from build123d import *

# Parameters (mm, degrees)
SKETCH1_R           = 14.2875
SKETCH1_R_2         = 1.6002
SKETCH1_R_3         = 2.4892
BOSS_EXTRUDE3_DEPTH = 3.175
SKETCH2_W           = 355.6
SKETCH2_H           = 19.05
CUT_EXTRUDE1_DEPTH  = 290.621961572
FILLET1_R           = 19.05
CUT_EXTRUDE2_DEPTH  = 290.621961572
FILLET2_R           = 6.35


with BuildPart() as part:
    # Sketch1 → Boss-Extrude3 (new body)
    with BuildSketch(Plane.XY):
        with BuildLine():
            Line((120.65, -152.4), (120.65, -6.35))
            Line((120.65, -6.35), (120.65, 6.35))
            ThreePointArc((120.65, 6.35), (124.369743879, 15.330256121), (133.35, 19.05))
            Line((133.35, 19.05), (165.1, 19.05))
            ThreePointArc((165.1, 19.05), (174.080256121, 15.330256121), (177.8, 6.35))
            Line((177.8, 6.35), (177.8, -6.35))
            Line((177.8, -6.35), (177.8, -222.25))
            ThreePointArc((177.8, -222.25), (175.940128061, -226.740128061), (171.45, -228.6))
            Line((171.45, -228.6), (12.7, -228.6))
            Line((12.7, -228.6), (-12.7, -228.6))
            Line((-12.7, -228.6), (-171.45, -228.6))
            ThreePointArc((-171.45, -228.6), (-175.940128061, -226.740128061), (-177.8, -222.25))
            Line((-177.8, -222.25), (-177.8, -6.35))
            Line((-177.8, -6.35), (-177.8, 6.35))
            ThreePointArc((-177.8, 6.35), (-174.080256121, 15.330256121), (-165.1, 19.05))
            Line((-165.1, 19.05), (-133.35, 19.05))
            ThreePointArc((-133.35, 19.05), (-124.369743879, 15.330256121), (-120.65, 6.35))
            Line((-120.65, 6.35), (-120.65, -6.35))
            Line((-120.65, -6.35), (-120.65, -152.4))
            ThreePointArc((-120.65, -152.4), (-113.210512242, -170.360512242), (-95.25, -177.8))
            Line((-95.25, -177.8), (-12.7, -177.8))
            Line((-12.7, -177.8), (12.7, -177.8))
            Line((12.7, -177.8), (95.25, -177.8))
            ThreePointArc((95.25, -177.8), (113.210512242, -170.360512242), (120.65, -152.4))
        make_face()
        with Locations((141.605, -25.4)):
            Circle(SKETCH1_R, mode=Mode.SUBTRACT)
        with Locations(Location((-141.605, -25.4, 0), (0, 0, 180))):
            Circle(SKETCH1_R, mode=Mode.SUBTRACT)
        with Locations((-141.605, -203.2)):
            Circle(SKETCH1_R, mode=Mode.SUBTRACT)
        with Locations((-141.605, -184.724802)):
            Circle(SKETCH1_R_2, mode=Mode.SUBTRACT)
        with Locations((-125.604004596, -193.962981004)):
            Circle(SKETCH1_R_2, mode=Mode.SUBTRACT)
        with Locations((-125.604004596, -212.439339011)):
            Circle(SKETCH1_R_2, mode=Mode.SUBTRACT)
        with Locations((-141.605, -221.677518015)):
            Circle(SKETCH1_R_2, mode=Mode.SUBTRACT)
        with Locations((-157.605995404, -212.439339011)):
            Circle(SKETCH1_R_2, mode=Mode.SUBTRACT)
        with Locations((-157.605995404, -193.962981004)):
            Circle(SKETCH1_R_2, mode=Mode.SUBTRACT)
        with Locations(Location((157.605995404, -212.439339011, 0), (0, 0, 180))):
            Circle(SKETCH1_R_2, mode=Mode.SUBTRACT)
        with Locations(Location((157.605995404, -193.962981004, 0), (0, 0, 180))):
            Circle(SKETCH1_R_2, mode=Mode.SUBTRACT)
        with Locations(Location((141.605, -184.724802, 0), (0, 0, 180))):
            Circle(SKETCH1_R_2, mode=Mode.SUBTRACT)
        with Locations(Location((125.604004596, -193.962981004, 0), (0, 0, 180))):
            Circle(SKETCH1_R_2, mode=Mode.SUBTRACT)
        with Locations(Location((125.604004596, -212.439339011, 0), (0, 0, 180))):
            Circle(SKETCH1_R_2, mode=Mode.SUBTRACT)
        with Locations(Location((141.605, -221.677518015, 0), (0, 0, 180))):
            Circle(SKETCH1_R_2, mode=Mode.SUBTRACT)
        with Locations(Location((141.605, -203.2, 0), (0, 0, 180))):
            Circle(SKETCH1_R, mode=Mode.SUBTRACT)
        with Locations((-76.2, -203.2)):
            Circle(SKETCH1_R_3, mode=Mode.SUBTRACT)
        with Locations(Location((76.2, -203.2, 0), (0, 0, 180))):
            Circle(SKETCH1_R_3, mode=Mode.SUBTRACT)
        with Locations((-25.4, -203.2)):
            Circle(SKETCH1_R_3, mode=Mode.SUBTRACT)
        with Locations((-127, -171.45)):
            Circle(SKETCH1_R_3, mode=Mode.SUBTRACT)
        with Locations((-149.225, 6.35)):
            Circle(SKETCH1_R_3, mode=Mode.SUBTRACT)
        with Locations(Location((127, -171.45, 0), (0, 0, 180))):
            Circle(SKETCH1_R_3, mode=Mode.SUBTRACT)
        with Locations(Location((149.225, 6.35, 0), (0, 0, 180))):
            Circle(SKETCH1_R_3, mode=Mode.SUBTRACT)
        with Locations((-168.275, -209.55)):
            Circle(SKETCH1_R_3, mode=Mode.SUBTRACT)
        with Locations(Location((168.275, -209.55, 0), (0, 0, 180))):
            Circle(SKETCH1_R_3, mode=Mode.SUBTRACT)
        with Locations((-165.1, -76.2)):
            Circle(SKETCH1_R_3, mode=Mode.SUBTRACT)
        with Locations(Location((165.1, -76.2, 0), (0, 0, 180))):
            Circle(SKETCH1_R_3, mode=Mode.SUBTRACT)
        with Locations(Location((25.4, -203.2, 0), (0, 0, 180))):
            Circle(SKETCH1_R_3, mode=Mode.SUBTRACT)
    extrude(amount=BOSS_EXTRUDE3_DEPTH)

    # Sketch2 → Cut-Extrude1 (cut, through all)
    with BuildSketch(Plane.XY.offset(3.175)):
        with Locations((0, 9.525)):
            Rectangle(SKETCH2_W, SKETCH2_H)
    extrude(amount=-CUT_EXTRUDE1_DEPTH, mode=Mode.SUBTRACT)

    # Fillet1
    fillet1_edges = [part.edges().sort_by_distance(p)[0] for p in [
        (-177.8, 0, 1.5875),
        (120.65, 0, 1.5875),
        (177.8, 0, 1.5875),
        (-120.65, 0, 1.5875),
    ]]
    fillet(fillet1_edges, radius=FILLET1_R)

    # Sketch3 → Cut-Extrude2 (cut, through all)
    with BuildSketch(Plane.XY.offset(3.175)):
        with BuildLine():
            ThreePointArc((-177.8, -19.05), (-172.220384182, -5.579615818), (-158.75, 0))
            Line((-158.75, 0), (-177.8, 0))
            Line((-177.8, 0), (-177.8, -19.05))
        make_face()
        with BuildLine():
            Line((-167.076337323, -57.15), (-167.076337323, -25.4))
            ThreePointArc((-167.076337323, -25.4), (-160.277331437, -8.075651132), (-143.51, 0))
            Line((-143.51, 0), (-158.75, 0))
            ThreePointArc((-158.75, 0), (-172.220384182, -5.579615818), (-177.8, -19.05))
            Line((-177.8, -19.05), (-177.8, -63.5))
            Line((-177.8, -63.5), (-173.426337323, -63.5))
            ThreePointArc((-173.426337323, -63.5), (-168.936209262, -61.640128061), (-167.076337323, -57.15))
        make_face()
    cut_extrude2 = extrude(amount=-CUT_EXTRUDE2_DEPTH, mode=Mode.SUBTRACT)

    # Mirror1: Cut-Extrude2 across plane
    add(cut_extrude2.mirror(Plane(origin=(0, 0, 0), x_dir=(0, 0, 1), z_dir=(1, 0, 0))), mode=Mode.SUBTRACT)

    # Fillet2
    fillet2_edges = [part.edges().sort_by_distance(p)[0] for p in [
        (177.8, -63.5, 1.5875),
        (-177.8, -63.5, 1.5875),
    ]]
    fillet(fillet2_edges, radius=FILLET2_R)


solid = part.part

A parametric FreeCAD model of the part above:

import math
import FreeCAD as App
import Part
import Sketcher
Q = App.Units.Quantity


def edges_at(feature, points):
    """Names of the edges that pass closest to the given points."""
    edges = feature.Shape.Edges
    near = lambda p: min(range(len(edges)), key=lambda i: edges[i].distToShape(Part.Vertex(*p))[0])
    return sorted({f"Edge{near(p) + 1}" for p in points})


def add_polygon(sketch, points):
    """Adds a closed chain of lines whose ends are joined by coincident constraints."""
    first, n = sketch.GeometryCount, len(points)
    for a, b in zip(points, points[1:] + points[:1]):
        sketch.addGeometry(Part.LineSegment(App.Vector(*a, 0), App.Vector(*b, 0)), False)
    for i in range(n):
        sketch.addConstraint(Sketcher.Constraint("Coincident", first + i, 2, first + (i + 1) % n, 1))

doc = App.newDocument("Part")
body = doc.addObject("PartDesign::Body", "Body")

# Sketch on XY plane
sketch1 = doc.addObject("Sketcher::SketchObject", "Sketch")
body.addObject(sketch1)
sketch1.AttachmentSupport = (doc.XY_Plane, [""])
sketch1.MapMode = "FlatFace"
sketch1.addGeometry([
    Part.LineSegment(App.Vector(120.7, 6.3, 0), App.Vector(120.7, -152.4, 0)),  # 0
    Part.ArcOfCircle(Part.Circle(App.Vector(95.2, -152.4, 0), App.Vector(0, 0, 1), 25.4), math.radians(-90), math.radians(0)),  # 1
    Part.LineSegment(App.Vector(95.2, -177.8, 0), App.Vector(-95.2, -177.8, 0)),  # 2
    Part.ArcOfCircle(Part.Circle(App.Vector(-95.2, -152.4, 0), App.Vector(0, 0, 1), 25.4), math.radians(180), math.radians(270)),  # 3
    Part.LineSegment(App.Vector(-120.7, -152.4, 0), App.Vector(-120.7, 6.3, 0)),  # 4
    Part.ArcOfCircle(Part.Circle(App.Vector(-133.3, 6.3, 0), App.Vector(0, 0, 1), 12.7), math.radians(0), math.radians(90)),  # 5
    Part.LineSegment(App.Vector(-133.3, 19.1, 0), App.Vector(-165.1, 19.1, 0)),  # 6
    Part.ArcOfCircle(Part.Circle(App.Vector(-165.1, 6.3, 0), App.Vector(0, 0, 1), 12.7), math.radians(90), math.radians(180)),  # 7
    Part.LineSegment(App.Vector(-177.8, 6.3, 0), App.Vector(-177.8, -222.2, 0)),  # 8
    Part.ArcOfCircle(Part.Circle(App.Vector(-171.5, -222.3, 0), App.Vector(0, 0, 1), 6.3), math.radians(180), math.radians(270)),  # 9
    Part.LineSegment(App.Vector(-171.4, -228.6, 0), App.Vector(171.4, -228.6, 0)),  # 10
    Part.ArcOfCircle(Part.Circle(App.Vector(171.5, -222.3, 0), App.Vector(0, 0, 1), 6.3), math.radians(-90), math.radians(0)),  # 11
    Part.LineSegment(App.Vector(177.8, -222.2, 0), App.Vector(177.8, 6.3, 0)),  # 12
    Part.ArcOfCircle(Part.Circle(App.Vector(165.1, 6.3, 0), App.Vector(0, 0, 1), 12.7), math.radians(0), math.radians(90)),  # 13
    Part.LineSegment(App.Vector(165.1, 19.1, 0), App.Vector(133.3, 19.1, 0)),  # 14
    Part.ArcOfCircle(Part.Circle(App.Vector(133.3, 6.3, 0), App.Vector(0, 0, 1), 12.7), math.radians(90), math.radians(180)),  # 15
    Part.Circle(App.Vector(168.3, -209.6, 0), App.Vector(0, 0, 1), 2.5),  # 16
    Part.Circle(App.Vector(157.6, -212.4, 0), App.Vector(0, 0, 1), 1.6),  # 17
    Part.Circle(App.Vector(141.6, -221.7, 0), App.Vector(0, 0, 1), 1.6),  # 18
    Part.Circle(App.Vector(141.6, -203.2, 0), App.Vector(0, 0, 1), 14.3),  # 19
    Part.Circle(App.Vector(125.6, -212.4, 0), App.Vector(0, 0, 1), 1.6),  # 20
    Part.Circle(App.Vector(157.6, -194, 0), App.Vector(0, 0, 1), 1.6),  # 21
    Part.Circle(App.Vector(141.6, -184.7, 0), App.Vector(0, 0, 1), 1.6),  # 22
    Part.Circle(App.Vector(125.6, -194, 0), App.Vector(0, 0, 1), 1.6),  # 23
    Part.Circle(App.Vector(127, -171.4, 0), App.Vector(0, 0, 1), 2.5),  # 24
    Part.Circle(App.Vector(76.2, -203.2, 0), App.Vector(0, 0, 1), 2.5),  # 25
    Part.Circle(App.Vector(25.4, -203.2, 0), App.Vector(0, 0, 1), 2.5),  # 26
    Part.Circle(App.Vector(-25.4, -203.2, 0), App.Vector(0, 0, 1), 2.5),  # 27
    Part.Circle(App.Vector(-76.2, -203.2, 0), App.Vector(0, 0, 1), 2.5),  # 28
    Part.Circle(App.Vector(-125.6, -212.4, 0), App.Vector(0, 0, 1), 1.6),  # 29
    Part.Circle(App.Vector(-141.6, -221.7, 0), App.Vector(0, 0, 1), 1.6),  # 30
    Part.Circle(App.Vector(-157.6, -212.4, 0), App.Vector(0, 0, 1), 1.6),  # 31
    Part.Circle(App.Vector(-168.3, -209.6, 0), App.Vector(0, 0, 1), 2.5),  # 32
    Part.Circle(App.Vector(-141.6, -203.2, 0), App.Vector(0, 0, 1), 14.3),  # 33
    Part.Circle(App.Vector(-125.6, -194, 0), App.Vector(0, 0, 1), 1.6),  # 34
    Part.Circle(App.Vector(-127, -171.4, 0), App.Vector(0, 0, 1), 2.5),  # 35
    Part.Circle(App.Vector(-141.6, -184.7, 0), App.Vector(0, 0, 1), 1.6),  # 36
    Part.Circle(App.Vector(-157.6, -194, 0), App.Vector(0, 0, 1), 1.6),  # 37
    Part.Circle(App.Vector(165.1, -76.2, 0), App.Vector(0, 0, 1), 2.5),  # 38
    Part.Circle(App.Vector(141.6, -25.4, 0), App.Vector(0, 0, 1), 14.3),  # 39
    Part.Circle(App.Vector(149.2, 6.3, 0), App.Vector(0, 0, 1), 2.5),  # 40
    Part.Circle(App.Vector(-165.1, -76.2, 0), App.Vector(0, 0, 1), 2.5),  # 41
    Part.Circle(App.Vector(-141.6, -25.4, 0), App.Vector(0, 0, 1), 14.3),  # 42
    Part.Circle(App.Vector(-149.2, 6.3, 0), App.Vector(0, 0, 1), 2.5),  # 43
], False)
sketch1.addConstraint([
    Sketcher.Constraint("Tangent", 0, 2, 1, 2),
    Sketcher.Constraint("Tangent", 1, 1, 2, 1),
    Sketcher.Constraint("Tangent", 2, 2, 3, 2),
    Sketcher.Constraint("Tangent", 3, 1, 4, 1),
    Sketcher.Constraint("Tangent", 4, 2, 5, 1),
    Sketcher.Constraint("Tangent", 5, 2, 6, 1),
    Sketcher.Constraint("Tangent", 6, 2, 7, 1),
    Sketcher.Constraint("Tangent", 7, 2, 8, 1),
    Sketcher.Constraint("Tangent", 8, 2, 9, 1),
    Sketcher.Constraint("Tangent", 9, 2, 10, 1),
    Sketcher.Constraint("Tangent", 10, 2, 11, 1),
    Sketcher.Constraint("Tangent", 11, 2, 12, 1),
    Sketcher.Constraint("Tangent", 12, 2, 13, 1),
    Sketcher.Constraint("Tangent", 13, 2, 14, 1),
    Sketcher.Constraint("Tangent", 14, 2, 15, 1),
    Sketcher.Constraint("Tangent", 15, 2, 0, 1),
    Sketcher.Constraint("Vertical", 0),
    Sketcher.Constraint("Horizontal", 2),
    Sketcher.Constraint("Vertical", 4),
    Sketcher.Constraint("Horizontal", 6),
    Sketcher.Constraint("Vertical", 8),
    Sketcher.Constraint("Horizontal", 10),
    Sketcher.Constraint("Vertical", 12),
    Sketcher.Constraint("Horizontal", 14),
    Sketcher.Constraint("Equal", 1, 3),
    Sketcher.Constraint("Equal", 5, 7),
    Sketcher.Constraint("Equal", 9, 11),
    Sketcher.Constraint("Equal", 7, 13),
    Sketcher.Constraint("Equal", 13, 15),
    Sketcher.Constraint("Equal", 17, 18),
    Sketcher.Constraint("Equal", 18, 20),
    Sketcher.Constraint("Equal", 20, 21),
    Sketcher.Constraint("Equal", 21, 22),
    Sketcher.Constraint("Equal", 22, 23),
    Sketcher.Constraint("Equal", 16, 24),
    Sketcher.Constraint("Equal", 24, 25),
    Sketcher.Constraint("Equal", 25, 26),
    Sketcher.Constraint("Equal", 26, 27),
    Sketcher.Constraint("Equal", 27, 28),
    Sketcher.Constraint("Equal", 23, 29),
    Sketcher.Constraint("Equal", 29, 30),
    Sketcher.Constraint("Equal", 30, 31),
    Sketcher.Constraint("Equal", 28, 32),
    Sketcher.Constraint("Equal", 19, 33),
    Sketcher.Constraint("Equal", 31, 34),
    Sketcher.Constraint("Equal", 32, 35),
    Sketcher.Constraint("Equal", 34, 36),
    Sketcher.Constraint("Equal", 36, 37),
    Sketcher.Constraint("Equal", 35, 38),
    Sketcher.Constraint("Equal", 33, 39),
    Sketcher.Constraint("Equal", 38, 40),
    Sketcher.Constraint("Equal", 40, 41),
    Sketcher.Constraint("Equal", 39, 42),
    Sketcher.Constraint("Equal", 41, 43),
    Sketcher.Constraint("Symmetric", 7, 3, 13, 3, -2),
    Sketcher.Constraint("Symmetric", 26, 3, 27, 3, -2),
    Sketcher.Constraint("Symmetric", 25, 3, 28, 3, -2),
    Sketcher.Constraint("Symmetric", 20, 3, 29, 3, -2),
    Sketcher.Constraint("Symmetric", 18, 3, 30, 3, -2),
    Sketcher.Constraint("Symmetric", 17, 3, 31, 3, -2),
    Sketcher.Constraint("Symmetric", 16, 3, 32, 3, -2),
    Sketcher.Constraint("Symmetric", 19, 3, 33, 3, -2),
    Sketcher.Constraint("Symmetric", 23, 3, 34, 3, -2),
    Sketcher.Constraint("Symmetric", 24, 3, 35, 3, -2),
    Sketcher.Constraint("Symmetric", 22, 3, 36, 3, -2),
    Sketcher.Constraint("Symmetric", 21, 3, 37, 3, -2),
    Sketcher.Constraint("Symmetric", 38, 3, 41, 3, -2),
    Sketcher.Constraint("Symmetric", 39, 3, 42, 3, -2),
    Sketcher.Constraint("Symmetric", 40, 3, 43, 3, -2),
    Sketcher.Constraint("Horizontal", 17, 3, 20, 3),
    Sketcher.Constraint("Horizontal", 21, 3, 23, 3),
    Sketcher.Constraint("Horizontal", 19, 3, 25, 3),
    Sketcher.Constraint("Horizontal", 25, 3, 26, 3),
    Sketcher.Constraint("Horizontal", 15, 3, 40, 3),
    Sketcher.Constraint("Vertical", 18, 3, 19, 3),
    Sketcher.Constraint("Vertical", 17, 3, 21, 3),
    Sketcher.Constraint("Vertical", 19, 3, 22, 3),
    Sketcher.Constraint("Vertical", 20, 3, 23, 3),
    Sketcher.Constraint("Vertical", 13, 3, 38, 3),
    Sketcher.Constraint("Vertical", 22, 3, 39, 3),
    Sketcher.Constraint("Equal", 6, 14),
    Sketcher.Constraint("Radius", 1, Q("1 in")),
    Sketcher.Constraint("Radius", 5, Q("0.5 in")),
    Sketcher.Constraint("DistanceY", 8, 2, 8, 1, Q("9 in")),
    Sketcher.Constraint("Radius", 9, Q("0.25 in")),
    Sketcher.Constraint("Diameter", 16, Q("0.196 in")),
    Sketcher.Constraint("Diameter", 17, Q("0.126 in")),
    Sketcher.Constraint("Diameter", 19, Q("1.125 in")),
    Sketcher.Constraint("DistanceX", 2, 2, 2, 1, Q("7.5 in")),
    Sketcher.Constraint("DistanceX", 10, 1, 10, 2, Q("13.5 in")),
    Sketcher.Constraint("DistanceY", 1, 3, -1, 1, Q("6 in")),
    Sketcher.Constraint("DistanceY", 19, 3, -1, 1, Q("8 in")),
    Sketcher.Constraint("DistanceX", -1, 1, 24, 3, Q("5 in")),
    Sketcher.Constraint("DistanceX", -1, 1, 25, 3, Q("3 in")),
    Sketcher.Constraint("DistanceX", -1, 1, 26, 3, Q("1 in")),
    Sketcher.Constraint("DistanceY", 38, 3, -1, 1, Q("3 in")),
    Sketcher.Constraint("DistanceY", 39, 3, -1, 1, Q("1 in")),
    Sketcher.Constraint("DistanceY", 9, 2, -1, 1, Q("9 in")),
    Sketcher.Constraint("DistanceY", 11, 3, 16, 3, Q("0.5 in")),
    Sketcher.Constraint("DistanceX", 39, 3, 40, 3, Q("0.3 in")),
    Sketcher.Constraint("DistanceY", 24, 3, -1, 1, Q("6.75 in")),
    Sketcher.Constraint("DistanceX", 18, 3, 16, 3, Q("1.05 in")),
    Sketcher.Constraint("DistanceX", -1, 1, 16, 3, Q("6.625 in")),
    Sketcher.Constraint("DistanceY", 16, 3, 22, 3, 24.825198),
    Sketcher.Constraint("DistanceY", 17, 3, -1, 1, 212.439339),
    Sketcher.Constraint("DistanceY", 18, 3, -1, 1, 221.677518),
    Sketcher.Constraint("DistanceY", 21, 3, -1, 1, 193.962981),
    Sketcher.Constraint("DistanceX", 20, 3, 17, 3, 32.001991),
    Sketcher.Constraint("DistanceX", -1, 1, 17, 3, 157.605995),
])
pad1 = doc.addObject("PartDesign::Pad", "Pad")
body.addObject(pad1)
pad1.Profile = sketch1
pad1.Length = Q("0.125 in")

# Sketch on XY plane
sketch2 = doc.addObject("Sketcher::SketchObject", "Sketch001")
body.addObject(sketch2)
sketch2.AttachmentSupport = (doc.XY_Plane, [""])
sketch2.MapMode = "FlatFace"
sketch2.AttachmentOffset = App.Placement(App.Vector(0, 0, 0.125 * 25.4), App.Rotation())
add_polygon(sketch2, [(-178, 19), (-178, 0), (178, 0), (178, 19)])  # lines 0-3
sketch2.addConstraint([
    Sketcher.Constraint("Vertical", 0),
    Sketcher.Constraint("Horizontal", 1),
    Sketcher.Constraint("Vertical", 2),
    Sketcher.Constraint("Horizontal", 3),
    Sketcher.Constraint("Symmetric", 0, 2, 1, 2, -1, 1),
    Sketcher.Constraint("DistanceX", 1, 1, 1, 2, Q("14 in")),
    Sketcher.Constraint("DistanceY", 0, 2, 0, 1, Q("0.75 in")),
])
pocket1 = doc.addObject("PartDesign::Pocket", "Pocket")
body.addObject(pocket1)
pocket1.Profile = sketch2
pocket1.Type = "ThroughAll"
doc.recompute()

fillet = doc.addObject("PartDesign::Fillet", "Fillet")
body.addObject(fillet)
fillet.Base = (pocket1, edges_at(pocket1, [
    (-177.8, 0, 1.587),
    (120.65, 0, 1.587),
    (177.8, 0, 1.587),
    (-120.65, 0, 1.587),
]))
fillet.Radius = Q("0.75 in")

# Sketch on XY plane
sketch3 = doc.addObject("Sketcher::SketchObject", "Sketch002")
body.addObject(sketch3)
sketch3.AttachmentSupport = (doc.XY_Plane, [""])
sketch3.MapMode = "FlatFace"
sketch3.AttachmentOffset = App.Placement(App.Vector(0, 0, 0.125 * 25.4), App.Rotation())
sketch3.addGeometry([
    Part.LineSegment(App.Vector(-177.8, 0, 0), App.Vector(-177.8, -63.5, 0)),  # 0
    Part.LineSegment(App.Vector(-177.8, -63.5, 0), App.Vector(-173.4, -63.5, 0)),  # 1
    Part.ArcOfCircle(Part.Circle(App.Vector(-173.4, -57.2, 0), App.Vector(0, 0, 1), 6.3), math.radians(-90), math.radians(0)),  # 2
    Part.LineSegment(App.Vector(-167.1, -57.1, 0), App.Vector(-167.1, -25.4, 0)),  # 3
    Part.ArcOfCircle(Part.Circle(App.Vector(-141.6, -25.4, 0), App.Vector(0, 0, 1), 25.5), math.radians(94), math.radians(180)),  # 4
    Part.LineSegment(App.Vector(-143.5, 0, 0), App.Vector(-177.8, 0, 0)),  # 5
], False)
sketch3.addConstraint([
    Sketcher.Constraint("Coincident", 0, 2, 1, 1),
    Sketcher.Constraint("Tangent", 1, 2, 2, 1),
    Sketcher.Constraint("Tangent", 2, 2, 3, 1),
    Sketcher.Constraint("Tangent", 3, 2, 4, 2),
    Sketcher.Constraint("Coincident", 4, 1, 5, 1),
    Sketcher.Constraint("Coincident", 5, 2, 0, 1),
    Sketcher.Constraint("Vertical", 0),
    Sketcher.Constraint("Horizontal", 1),
    Sketcher.Constraint("Vertical", 3),
    Sketcher.Constraint("Horizontal", 5),
    Sketcher.Constraint("PointOnObject", 4, 1, -1),
    Sketcher.Constraint("Radius", 2, Q("0.25 in")),
    Sketcher.Constraint("DistanceY", 0, 2, 0, 1, Q("2.5 in")),
    Sketcher.Constraint("DistanceY", 4, 3, -1, 1, Q("1 in")),
    Sketcher.Constraint("DistanceX", 0, 2, -1, 1, Q("7 in")),
    Sketcher.Constraint("DistanceX", 5, 2, 5, 1, Q("1.35 in")),
    Sketcher.Constraint("DistanceX", 4, 3, -1, 1, Q("5.575 in")),
])
pocket2 = doc.addObject("PartDesign::Pocket", "Pocket001")
body.addObject(pocket2)
pocket2.Profile = sketch3
pocket2.Type = "ThroughAll"
doc.recompute()

mirrored = doc.addObject("PartDesign::Mirrored", "Mirrored")
body.addObject(mirrored)
mirrored.Originals = [pocket2]
mirrored.MirrorPlane = (doc.YZ_Plane, [""])
body.Tip = mirrored
doc.recompute()

fillet2 = doc.addObject("PartDesign::Fillet", "Fillet001")
body.addObject(fillet2)
fillet2.Base = (mirrored, edges_at(mirrored, [(177.8, -63.5, 1.587), (-177.8, -63.5, 1.587)]))
fillet2.Radius = Q("0.25 in")

doc.recompute()
